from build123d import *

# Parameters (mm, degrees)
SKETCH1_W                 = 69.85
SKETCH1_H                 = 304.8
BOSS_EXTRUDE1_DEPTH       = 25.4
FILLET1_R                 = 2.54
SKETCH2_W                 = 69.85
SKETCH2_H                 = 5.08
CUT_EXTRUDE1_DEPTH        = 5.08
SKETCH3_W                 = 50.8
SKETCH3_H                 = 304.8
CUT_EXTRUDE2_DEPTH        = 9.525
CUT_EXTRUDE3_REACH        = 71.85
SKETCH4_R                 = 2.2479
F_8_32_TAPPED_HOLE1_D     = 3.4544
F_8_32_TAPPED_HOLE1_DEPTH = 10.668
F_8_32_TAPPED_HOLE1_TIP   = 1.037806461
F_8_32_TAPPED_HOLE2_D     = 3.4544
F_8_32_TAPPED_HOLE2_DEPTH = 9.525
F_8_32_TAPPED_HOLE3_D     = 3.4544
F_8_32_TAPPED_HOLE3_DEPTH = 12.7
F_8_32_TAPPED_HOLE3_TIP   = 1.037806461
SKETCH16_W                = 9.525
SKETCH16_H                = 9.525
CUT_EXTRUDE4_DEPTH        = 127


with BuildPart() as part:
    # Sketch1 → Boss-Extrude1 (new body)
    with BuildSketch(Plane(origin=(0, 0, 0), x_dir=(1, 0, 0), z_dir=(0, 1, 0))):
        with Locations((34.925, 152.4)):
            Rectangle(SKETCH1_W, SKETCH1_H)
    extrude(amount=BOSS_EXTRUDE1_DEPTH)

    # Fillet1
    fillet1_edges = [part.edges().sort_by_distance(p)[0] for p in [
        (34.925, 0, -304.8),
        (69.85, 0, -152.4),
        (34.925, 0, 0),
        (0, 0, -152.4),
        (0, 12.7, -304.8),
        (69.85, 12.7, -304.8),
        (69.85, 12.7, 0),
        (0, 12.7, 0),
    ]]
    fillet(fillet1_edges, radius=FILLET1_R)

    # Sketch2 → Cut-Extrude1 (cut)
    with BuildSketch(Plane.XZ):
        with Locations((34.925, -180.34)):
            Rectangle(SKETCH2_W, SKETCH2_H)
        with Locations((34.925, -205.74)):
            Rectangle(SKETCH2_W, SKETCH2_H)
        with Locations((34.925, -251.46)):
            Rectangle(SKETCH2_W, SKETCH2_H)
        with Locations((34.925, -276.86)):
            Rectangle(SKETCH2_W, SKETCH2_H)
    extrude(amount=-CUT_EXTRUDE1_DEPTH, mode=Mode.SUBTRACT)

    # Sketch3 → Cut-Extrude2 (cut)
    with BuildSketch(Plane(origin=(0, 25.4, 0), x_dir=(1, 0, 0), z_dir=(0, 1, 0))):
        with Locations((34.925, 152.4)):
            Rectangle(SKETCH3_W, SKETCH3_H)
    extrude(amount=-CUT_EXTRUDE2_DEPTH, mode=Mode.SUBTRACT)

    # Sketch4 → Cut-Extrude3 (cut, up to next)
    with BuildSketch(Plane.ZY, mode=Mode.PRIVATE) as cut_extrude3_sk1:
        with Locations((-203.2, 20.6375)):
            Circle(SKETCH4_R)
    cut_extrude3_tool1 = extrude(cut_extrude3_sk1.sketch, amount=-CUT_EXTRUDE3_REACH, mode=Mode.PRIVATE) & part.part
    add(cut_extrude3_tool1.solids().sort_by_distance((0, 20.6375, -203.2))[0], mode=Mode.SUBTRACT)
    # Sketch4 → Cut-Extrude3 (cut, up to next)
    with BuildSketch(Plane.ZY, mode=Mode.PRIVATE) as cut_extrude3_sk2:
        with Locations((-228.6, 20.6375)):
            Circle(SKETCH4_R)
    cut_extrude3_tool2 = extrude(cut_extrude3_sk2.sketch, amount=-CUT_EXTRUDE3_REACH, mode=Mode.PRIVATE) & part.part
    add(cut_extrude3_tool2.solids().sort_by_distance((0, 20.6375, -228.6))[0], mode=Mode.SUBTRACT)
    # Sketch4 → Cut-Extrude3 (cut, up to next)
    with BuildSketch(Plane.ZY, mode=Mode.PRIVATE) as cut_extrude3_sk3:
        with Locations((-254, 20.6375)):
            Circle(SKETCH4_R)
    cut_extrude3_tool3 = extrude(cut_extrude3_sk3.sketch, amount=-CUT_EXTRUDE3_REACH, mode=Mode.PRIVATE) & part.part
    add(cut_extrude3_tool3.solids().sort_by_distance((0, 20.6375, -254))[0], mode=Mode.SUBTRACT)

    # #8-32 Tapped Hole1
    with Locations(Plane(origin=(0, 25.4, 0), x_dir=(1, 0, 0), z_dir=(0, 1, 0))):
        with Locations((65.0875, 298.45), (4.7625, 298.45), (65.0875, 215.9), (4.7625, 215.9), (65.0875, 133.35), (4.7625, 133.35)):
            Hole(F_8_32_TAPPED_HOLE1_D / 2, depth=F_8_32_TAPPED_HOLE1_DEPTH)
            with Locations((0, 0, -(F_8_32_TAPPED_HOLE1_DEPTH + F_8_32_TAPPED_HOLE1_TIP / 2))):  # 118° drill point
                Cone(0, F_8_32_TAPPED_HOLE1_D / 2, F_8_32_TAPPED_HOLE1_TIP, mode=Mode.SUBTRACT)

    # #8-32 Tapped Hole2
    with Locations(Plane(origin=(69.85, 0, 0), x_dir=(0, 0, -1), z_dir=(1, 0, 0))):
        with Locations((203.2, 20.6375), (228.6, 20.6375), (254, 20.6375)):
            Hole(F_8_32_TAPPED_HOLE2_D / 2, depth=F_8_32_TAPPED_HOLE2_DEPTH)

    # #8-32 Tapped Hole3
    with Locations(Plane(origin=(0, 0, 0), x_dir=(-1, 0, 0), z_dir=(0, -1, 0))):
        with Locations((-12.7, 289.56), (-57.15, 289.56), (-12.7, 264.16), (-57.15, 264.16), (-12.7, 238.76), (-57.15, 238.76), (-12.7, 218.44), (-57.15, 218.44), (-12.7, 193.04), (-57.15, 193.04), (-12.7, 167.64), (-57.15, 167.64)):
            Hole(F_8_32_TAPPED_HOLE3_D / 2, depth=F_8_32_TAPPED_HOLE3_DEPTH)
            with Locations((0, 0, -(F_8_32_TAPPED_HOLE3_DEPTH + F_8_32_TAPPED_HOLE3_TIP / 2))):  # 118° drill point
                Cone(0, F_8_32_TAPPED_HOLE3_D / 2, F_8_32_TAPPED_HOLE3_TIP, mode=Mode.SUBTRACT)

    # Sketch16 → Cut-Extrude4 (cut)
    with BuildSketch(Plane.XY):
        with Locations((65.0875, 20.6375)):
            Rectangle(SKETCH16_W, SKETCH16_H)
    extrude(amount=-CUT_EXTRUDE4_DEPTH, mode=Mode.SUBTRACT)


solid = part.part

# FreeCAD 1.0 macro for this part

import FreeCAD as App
import Part
import Sketcher

V = App.Vector
Q = App.Units.Quantity


def edges_at(feature, points):
    """Names of the edges that pass closest to the given points."""
    edges = feature.Shape.Edges
    near = lambda p: min(range(len(edges)), key=lambda i: edges[i].distToShape(Part.Vertex(*p))[0])
    return sorted({f"Edge{near(p) + 1}" for p in points})

doc = App.newDocument("Part")
body = doc.addObject("PartDesign::Body", "Body")

# Sketch on XZ plane
sketch1 = body.newObject("Sketcher::SketchObject", "Sketch")
sketch1.AttachmentSupport = (doc.getObject("XZ_Plane"), [""])
sketch1.MapMode = "FlatFace"
sketch1.addGeometry(Part.LineSegment(V(0, -304.8, 0), V(0, 0, 0)), False)
sketch1.addGeometry(Part.LineSegment(V(0, 0, 0), V(69.85, 0, 0)), False)
sketch1.addGeometry(Part.LineSegment(V(69.85, 0, 0), V(69.85, -304.8, 0)), False)
sketch1.addGeometry(Part.LineSegment(V(69.85, -304.8, 0), V(0, -304.8, 0)), False)
sketch1.addConstraint(Sketcher.Constraint("Coincident", 0, 2, 1, 1))
sketch1.addConstraint(Sketcher.Constraint("Coincident", 1, 2, 2, 1))
sketch1.addConstraint(Sketcher.Constraint("Coincident", 2, 2, 3, 1))
sketch1.addConstraint(Sketcher.Constraint("Coincident", 3, 2, 0, 1))
sketch1.addConstraint(Sketcher.Constraint("Vertical", 0))
sketch1.addConstraint(Sketcher.Constraint("Horizontal", 1))
sketch1.addConstraint(Sketcher.Constraint("Vertical", 2))
sketch1.addConstraint(Sketcher.Constraint("Horizontal", 3))
sketch1.addConstraint(Sketcher.Constraint("Coincident", 0, 2, -1, 1))
sketch1.addConstraint(Sketcher.Constraint("DistanceY", 0, 1, 0, 2, Q("12 in")))
sketch1.addConstraint(Sketcher.Constraint("DistanceX", 1, 1, 1, 2, Q("2.75 in")))
pad1 = body.newObject("PartDesign::Pad", "Pad")
pad1.Profile = sketch1
pad1.Length = Q("1 in")
pad1.Reversed = True
doc.recompute()

fillet = body.newObject("PartDesign::Fillet", "Fillet")
fillet.Base = (pad1, edges_at(pad1, [
    (34.925, 0, -304.8),
    (69.85, 0, -152.4),
    (34.925, 0, 0),
    (0, 0, -152.4),
    (0, 12.7, -304.8),
    (69.85, 12.7, -304.8),
    (69.85, 12.7, 0),
    (0, 12.7, 0),
]))
fillet.Radius = Q("0.1 in")

# Sketch on XZ plane
sketch2 = body.newObject("Sketcher::SketchObject", "Sketch001")
sketch2.AttachmentSupport = (doc.getObject("XZ_Plane"), [""])
sketch2.MapMode = "FlatFace"
sketch2.addGeometry(Part.LineSegment(V(0, -177.8, 0), V(0, -182.88, 0)), False)
sketch2.addGeometry(Part.LineSegment(V(0, -182.88, 0), V(69.85, -182.88, 0)), False)
sketch2.addGeometry(Part.LineSegment(V(69.85, -182.88, 0), V(69.85, -177.8, 0)), False)
sketch2.addGeometry(Part.LineSegment(V(69.85, -177.8, 0), V(0, -177.8, 0)), False)
sketch2.addGeometry(Part.LineSegment(V(0, -203.2, 0), V(0, -208.28, 0)), False)
sketch2.addGeometry(Part.LineSegment(V(0, -208.28, 0), V(69.85, -208.28, 0)), False)
sketch2.addGeometry(Part.LineSegment(V(69.85, -208.28, 0), V(69.85, -203.2, 0)), False)
sketch2.addGeometry(Part.LineSegment(V(69.85, -203.2, 0), V(0, -203.2, 0)), False)
sketch2.addGeometry(Part.LineSegment(V(0, -248.92, 0), V(0, -254, 0)), False)
sketch2.addGeometry(Part.LineSegment(V(0, -254, 0), V(69.85, -254, 0)), False)
sketch2.addGeometry(Part.LineSegment(V(69.85, -254, 0), V(69.85, -248.92, 0)), False)
sketch2.addGeometry(Part.LineSegment(V(69.85, -248.92, 0), V(0, -248.92, 0)), False)
sketch2.addGeometry(Part.LineSegment(V(0, -274.32, 0), V(0, -279.4, 0)), False)
sketch2.addGeometry(Part.LineSegment(V(0, -279.4, 0), V(69.85, -279.4, 0)), False)
sketch2.addGeometry(Part.LineSegment(V(69.85, -279.4, 0), V(69.85, -274.32, 0)), False)
sketch2.addGeometry(Part.LineSegment(V(69.85, -274.32, 0), V(0, -274.32, 0)), False)
sketch2.addConstraint(Sketcher.Constraint("Coincident", 0, 2, 1, 1))
sketch2.addConstraint(Sketcher.Constraint("Coincident", 1, 2, 2, 1))
sketch2.addConstraint(Sketcher.Constraint("Coincident", 2, 2, 3, 1))
sketch2.addConstraint(Sketcher.Constraint("Coincident", 3, 2, 0, 1))
sketch2.addConstraint(Sketcher.Constraint("Coincident", 4, 2, 5, 1))
sketch2.addConstraint(Sketcher.Constraint("Coincident", 5, 2, 6, 1))
sketch2.addConstraint(Sketcher.Constraint("Coincident", 6, 2, 7, 1))
sketch2.addConstraint(Sketcher.Constraint("Coincident", 7, 2, 4, 1))
sketch2.addConstraint(Sketcher.Constraint("Coincident", 8, 2, 9, 1))
sketch2.addConstraint(Sketcher.Constraint("Coincident", 9, 2, 10, 1))
sketch2.addConstraint(Sketcher.Constraint("Coincident", 10, 2, 11, 1))
sketch2.addConstraint(Sketcher.Constraint("Coincident", 11, 2, 8, 1))
sketch2.addConstraint(Sketcher.Constraint("Coincident", 12, 2, 13, 1))
sketch2.addConstraint(Sketcher.Constraint("Coincident", 13, 2, 14, 1))
sketch2.addConstraint(Sketcher.Constraint("Coincident", 14, 2, 15, 1))
sketch2.addConstraint(Sketcher.Constraint("Coincident", 15, 2, 12, 1))
sketch2.addConstraint(Sketcher.Constraint("Vertical", 0))
sketch2.addConstraint(Sketcher.Constraint("Horizontal", 1))
sketch2.addConstraint(Sketcher.Constraint("Vertical", 2))
sketch2.addConstraint(Sketcher.Constraint("Horizontal", 3))
sketch2.addConstraint(Sketcher.Constraint("Vertical", 4))
sketch2.addConstraint(Sketcher.Constraint("Horizontal", 5))
sketch2.addConstraint(Sketcher.Constraint("Vertical", 6))
sketch2.addConstraint(Sketcher.Constraint("Horizontal", 7))
sketch2.addConstraint(Sketcher.Constraint("Vertical", 8))
sketch2.addConstraint(Sketcher.Constraint("Horizontal", 9))
sketch2.addConstraint(Sketcher.Constraint("Vertical", 10))
sketch2.addConstraint(Sketcher.Constraint("Horizontal", 11))
sketch2.addConstraint(Sketcher.Constraint("Vertical", 12))
sketch2.addConstraint(Sketcher.Constraint("Horizontal", 13))
sketch2.addConstraint(Sketcher.Constraint("Vertical", 14))
sketch2.addConstraint(Sketcher.Constraint("Horizontal", 15))
sketch2.addConstraint(Sketcher.Constraint("PointOnObject", 0, 2, -2))
sketch2.addConstraint(Sketcher.Constraint("PointOnObject", 4, 2, -2))
sketch2.addConstraint(Sketcher.Constraint("PointOnObject", 8, 2, -2))
sketch2.addConstraint(Sketcher.Constraint("PointOnObject", 12, 2, -2))
sketch2.addConstraint(Sketcher.Constraint("Vertical", 2, 2, 5, 2))
sketch2.addConstraint(Sketcher.Constraint("Vertical", 6, 2, 9, 2))
sketch2.addConstraint(Sketcher.Constraint("Vertical", 10, 2, 13, 2))
sketch2.addConstraint(Sketcher.Constraint("Equal", 2, 4))
sketch2.addConstraint(Sketcher.Constraint("Equal", 6, 8))
sketch2.addConstraint(Sketcher.Constraint("Equal", 10, 12))
sketch2.addConstraint(Sketcher.Constraint("DistanceY", 0, 2, 0, 1, Q("0.2 in")))
sketch2.addConstraint(Sketcher.Constraint("DistanceY", 2, 2, -1, 1, Q("7 in")))
sketch2.addConstraint(Sketcher.Constraint("DistanceY", 6, 2, -1, 1, Q("8 in")))
sketch2.addConstraint(Sketcher.Constraint("DistanceY", 8, 2, -1, 1, Q("10 in")))
sketch2.addConstraint(Sketcher.Constraint("DistanceY", 12, 2, -1, 1, Q("11 in")))
sketch2.addConstraint(Sketcher.Constraint("DistanceX", 1, 1, 1, 2, Q("2.75 in")))
pocket1 = body.newObject("PartDesign::Pocket", "Pocket")
pocket1.Profile = sketch2
pocket1.Length = Q("0.2 in")

# Sketch on XZ plane
sketch3 = body.newObject("Sketcher::SketchObject", "Sketch002")
sketch3.AttachmentSupport = (doc.getObject("XZ_Plane"), [""])
sketch3.MapMode = "FlatFace"
sketch3.AttachmentOffset = App.Placement(V(0, 0, -1 * 25.4), App.Rotation())
sketch3.addGeometry(Part.LineSegment(V(9.525, -304.8, 0), V(9.525, 0, 0)), False)
sketch3.addGeometry(Part.LineSegment(V(9.525, 0, 0), V(60.325, 0, 0)), False)
sketch3.addGeometry(Part.LineSegment(V(60.325, 0, 0), V(60.325, -304.8, 0)), False)
sketch3.addGeometry(Part.LineSegment(V(60.325, -304.8, 0), V(9.525, -304.8, 0)), False)
sketch3.addConstraint(Sketcher.Constraint("Coincident", 0, 2, 1, 1))
sketch3.addConstraint(Sketcher.Constraint("Coincident", 1, 2, 2, 1))
sketch3.addConstraint(Sketcher.Constraint("Coincident", 2, 2, 3, 1))
sketch3.addConstraint(Sketcher.Constraint("Coincident", 3, 2, 0, 1))
sketch3.addConstraint(Sketcher.Constraint("Vertical", 0))
sketch3.addConstraint(Sketcher.Constraint("Horizontal", 1))
sketch3.addConstraint(Sketcher.Constraint("Vertical", 2))
sketch3.addConstraint(Sketcher.Constraint("Horizontal", 3))
sketch3.addConstraint(Sketcher.Constraint("PointOnObject", 0, 2, -1))
sketch3.addConstraint(Sketcher.Constraint("DistanceX", 1, 1, 1, 2, Q("2 in")))
sketch3.addConstraint(Sketcher.Constraint("DistanceY", 0, 1, 0, 2, Q("12 in")))
sketch3.addConstraint(Sketcher.Constraint("DistanceX", -1, 1, 0, 2, Q("0.375 in")))
pocket2 = body.newObject("PartDesign::Pocket", "Pocket001")
pocket2.Profile = sketch3
pocket2.Length = Q("0.375 in")
pocket2.Reversed = True

# Sketch on YZ plane
sketch4 = body.newObject("Sketcher::SketchObject", "Sketch003")
sketch4.AttachmentSupport = (doc.getObject("YZ_Plane"), [""])
sketch4.MapMode = "FlatFace"
sketch4.addGeometry(Part.Circle(V(20.6375, -203.2, 0), V(0, 0, 1), 2.2479), False)
sketch4.addConstraint(Sketcher.Constraint("Diameter", 0, Q("0.177 in")))
sketch4.addConstraint(Sketcher.Constraint("DistanceY", 0, 3, -1, 1, Q("8 in")))
sketch4.addConstraint(Sketcher.Constraint("DistanceX", -1, 1, 0, 3, Q("0.8125 in")))
pocket3 = body.newObject("PartDesign::Pocket", "Pocket002")
pocket3.Profile = sketch4
pocket3.Type = "UpToFirst"
pocket3.Reversed = True

# Sketch on YZ plane
sketch5 = body.newObject("Sketcher::SketchObject", "Sketch004")
sketch5.AttachmentSupport = (doc.getObject("YZ_Plane"), [""])
sketch5.MapMode = "FlatFace"
sketch5.addGeometry(Part.Circle(V(20.6375, -228.6, 0), V(0, 0, 1), 2.2479), False)
sketch5.addConstraint(Sketcher.Constraint("Diameter", 0, Q("0.177 in")))
sketch5.addConstraint(Sketcher.Constraint("DistanceY", 0, 3, -1, 1, Q("9 in")))
sketch5.addConstraint(Sketcher.Constraint("DistanceX", -1, 1, 0, 3, Q("0.8125 in")))
pocket4 = body.newObject("PartDesign::Pocket", "Pocket003")
pocket4.Profile = sketch5
pocket4.Type = "UpToFirst"
pocket4.Reversed = True

# Sketch on YZ plane
sketch6 = body.newObject("Sketcher::SketchObject", "Sketch005")
sketch6.AttachmentSupport = (doc.getObject("YZ_Plane"), [""])
sketch6.MapMode = "FlatFace"
sketch6.addGeometry(Part.Circle(V(20.6375, -254, 0), V(0, 0, 1), 2.2479), False)
sketch6.addConstraint(Sketcher.Constraint("Diameter", 0, Q("0.177 in")))
sketch6.addConstraint(Sketcher.Constraint("DistanceY", 0, 3, -1, 1, Q("10 in")))
sketch6.addConstraint(Sketcher.Constraint("DistanceX", -1, 1, 0, 3, Q("0.8125 in")))
pocket5 = body.newObject("PartDesign::Pocket", "Pocket004")
pocket5.Profile = sketch6
pocket5.Type = "UpToFirst"
pocket5.Reversed = True

# Sketch on XZ plane
sketch7 = body.newObject("Sketcher::SketchObject", "Sketch006")
sketch7.AttachmentSupport = (doc.getObject("XZ_Plane"), [""])
sketch7.MapMode = "FlatFace"
sketch7.AttachmentOffset = App.Placement(V(0, 0, -1 * 25.4), App.Rotation())
sketch7.addGeometry(Part.Circle(V(65.0875, -298.45, 0), V(0, 0, 1), 1.7272), False)
sketch7.addGeometry(Part.Circle(V(4.7625, -298.45, 0), V(0, 0, 1), 1.7272), False)
sketch7.addGeometry(Part.Circle(V(65.0875, -215.9, 0), V(0, 0, 1), 1.7272), False)
sketch7.addGeometry(Part.Circle(V(4.7625, -215.9, 0), V(0, 0, 1), 1.7272), False)
sketch7.addGeometry(Part.Circle(V(65.0875, -133.35, 0), V(0, 0, 1), 1.7272), False)
sketch7.addGeometry(Part.Circle(V(4.7625, -133.35, 0), V(0, 0, 1), 1.7272), False)
sketch7.addConstraint(Sketcher.Constraint("Equal", 0, 1))
sketch7.addConstraint(Sketcher.Constraint("Equal", 1, 2))
sketch7.addConstraint(Sketcher.Constraint("Equal", 2, 3))
sketch7.addConstraint(Sketcher.Constraint("Equal", 3, 4))
sketch7.addConstraint(Sketcher.Constraint("Equal", 4, 5))
sketch7.addConstraint(Sketcher.Constraint("Horizontal", 0, 3, 1, 3))
sketch7.addConstraint(Sketcher.Constraint("Horizontal", 2, 3, 3, 3))
sketch7.addConstraint(Sketcher.Constraint("Horizontal", 4, 3, 5, 3))
sketch7.addConstraint(Sketcher.Constraint("Vertical", 0, 3, 2, 3))
sketch7.addConstraint(Sketcher.Constraint("Vertical", 1, 3, 3, 3))
sketch7.addConstraint(Sketcher.Constraint("Vertical", 2, 3, 4, 3))
sketch7.addConstraint(Sketcher.Constraint("Vertical", 3, 3, 5, 3))
sketch7.addConstraint(Sketcher.Constraint("Diameter", 0, Q("0.136 in")))
sketch7.addConstraint(Sketcher.Constraint("DistanceY", 2, 3, -1, 1, Q("8.5 in")))
sketch7.addConstraint(Sketcher.Constraint("DistanceY", 0, 3, 4, 3, Q("6.5 in")))
sketch7.addConstraint(Sketcher.Constraint("DistanceY", 0, 3, -1, 1, Q("11.75 in")))
sketch7.addConstraint(Sketcher.Constraint("DistanceX", -1, 1, 0, 3, Q("2.5625 in")))
sketch7.addConstraint(Sketcher.Constraint("DistanceX", -1, 1, 1, 3, Q("0.1875 in")))
doc.recompute()
hole = body.newObject("PartDesign::Hole", "Hole")
hole.Profile = sketch7
hole.ThreadType = "None"
hole.Diameter = Q("0.136 in")
hole.DepthType = "Dimension"
hole.Depth = Q("0.42 in")
hole.DrillPoint = "Angled"
hole.DrillPointAngle = 118
hole.Reversed = True

# Sketch on YZ plane
sketch8 = body.newObject("Sketcher::SketchObject", "Sketch007")
sketch8.AttachmentSupport = (doc.getObject("YZ_Plane"), [""])
sketch8.MapMode = "FlatFace"
sketch8.AttachmentOffset = App.Placement(V(0, 0, 2.75 * 25.4), App.Rotation())
sketch8.addGeometry(Part.Circle(V(20.6375, -203.2, 0), V(0, 0, 1), 1.7272), False)
sketch8.addGeometry(Part.Circle(V(20.6375, -228.6, 0), V(0, 0, 1), 1.7272), False)
sketch8.addGeometry(Part.Circle(V(20.6375, -254, 0), V(0, 0, 1), 1.7272), False)
sketch8.addConstraint(Sketcher.Constraint("Equal", 0, 1))
sketch8.addConstraint(Sketcher.Constraint("Equal", 1, 2))
sketch8.addConstraint(Sketcher.Constraint("Vertical", 0, 3, 1, 3))
sketch8.addConstraint(Sketcher.Constraint("Vertical", 1, 3, 2, 3))
sketch8.addConstraint(Sketcher.Constraint("Diameter", 0, Q("0.136 in")))
sketch8.addConstraint(Sketcher.Constraint("DistanceY", 0, 3, -1, 1, Q("8 in")))
sketch8.addConstraint(Sketcher.Constraint("DistanceY", 1, 3, -1, 1, Q("9 in")))
sketch8.addConstraint(Sketcher.Constraint("DistanceY", 2, 3, -1, 1, Q("10 in")))
sketch8.addConstraint(Sketcher.Constraint("DistanceX", -1, 1, 0, 3, Q("0.8125 in")))
doc.recompute()
hole2 = body.newObject("PartDesign::Hole", "Hole001")
hole2.Profile = sketch8
hole2.ThreadType = "None"
hole2.Diameter = Q("0.136 in")
hole2.DepthType = "Dimension"
hole2.Depth = Q("0.375 in")
hole2.DrillPoint = "Flat"

# Sketch on XZ plane
sketch9 = body.newObject("Sketcher::SketchObject", "Sketch008")
sketch9.AttachmentSupport = (doc.getObject("XZ_Plane"), [""])
sketch9.MapMode = "FlatFace"
sketch9.addGeometry(Part.Circle(V(12.7, -289.56, 0), V(0, 0, 1), 1.7272), False)
sketch9.addGeometry(Part.Circle(V(57.15, -289.56, 0), V(0, 0, 1), 1.7272), False)
sketch9.addGeometry(Part.Circle(V(12.7, -264.16, 0), V(0, 0, 1), 1.7272), False)
sketch9.addGeometry(Part.Circle(V(57.15, -264.16, 0), V(0, 0, 1), 1.7272), False)
sketch9.addGeometry(Part.Circle(V(12.7, -238.76, 0), V(0, 0, 1), 1.7272), False)
sketch9.addGeometry(Part.Circle(V(57.15, -238.76, 0), V(0, 0, 1), 1.7272), False)
sketch9.addGeometry(Part.Circle(V(12.7, -218.44, 0), V(0, 0, 1), 1.7272), False)
sketch9.addGeometry(Part.Circle(V(57.15, -218.44, 0), V(0, 0, 1), 1.7272), False)
sketch9.addGeometry(Part.Circle(V(12.7, -193.04, 0), V(0, 0, 1), 1.7272), False)
sketch9.addGeometry(Part.Circle(V(57.15, -193.04, 0), V(0, 0, 1), 1.7272), False)
sketch9.addGeometry(Part.Circle(V(12.7, -167.64, 0), V(0, 0, 1), 1.7272), False)
sketch9.addGeometry(Part.Circle(V(57.15, -167.64, 0), V(0, 0, 1), 1.7272), False)
sketch9.addConstraint(Sketcher.Constraint("Equal", 0, 1))
sketch9.addConstraint(Sketcher.Constraint("Equal", 1, 2))
sketch9.addConstraint(Sketcher.Constraint("Equal", 2, 3))
sketch9.addConstraint(Sketcher.Constraint("Equal", 3, 4))
sketch9.addConstraint(Sketcher.Constraint("Equal", 4, 5))
sketch9.addConstraint(Sketcher.Constraint("Equal", 5, 6))
sketch9.addConstraint(Sketcher.Constraint("Equal", 6, 7))
sketch9.addConstraint(Sketcher.Constraint("Equal", 7, 8))
sketch9.addConstraint(Sketcher.Constraint("Equal", 8, 9))
sketch9.addConstraint(Sketcher.Constraint("Equal", 9, 10))
sketch9.addConstraint(Sketcher.Constraint("Equal", 10, 11))
sketch9.addConstraint(Sketcher.Constraint("Horizontal", 0, 3, 1, 3))
sketch9.addConstraint(Sketcher.Constraint("Horizontal", 2, 3, 3, 3))
sketch9.addConstraint(Sketcher.Constraint("Horizontal", 4, 3, 5, 3))
sketch9.addConstraint(Sketcher.Constraint("Horizontal", 6, 3, 7, 3))
sketch9.addConstraint(Sketcher.Constraint("Horizontal", 8, 3, 9, 3))
sketch9.addConstraint(Sketcher.Constraint("Horizontal", 10, 3, 11, 3))
sketch9.addConstraint(Sketcher.Constraint("Vertical", 0, 3, 2, 3))
sketch9.addConstraint(Sketcher.Constraint("Vertical", 1, 3, 3, 3))
sketch9.addConstraint(Sketcher.Constraint("Vertical", 2, 3, 4, 3))
sketch9.addConstraint(Sketcher.Constraint("Vertical", 3, 3, 5, 3))
sketch9.addConstraint(Sketcher.Constraint("Vertical", 4, 3, 6, 3))
sketch9.addConstraint(Sketcher.Constraint("Vertical", 5, 3, 7, 3))
sketch9.addConstraint(Sketcher.Constraint("Vertical", 6, 3, 8, 3))
sketch9.addConstraint(Sketcher.Constraint("Vertical", 7, 3, 9, 3))
sketch9.addConstraint(Sketcher.Constraint("Vertical", 8, 3, 10, 3))
sketch9.addConstraint(Sketcher.Constraint("Vertical", 9, 3, 11, 3))
sketch9.addConstraint(Sketcher.Constraint("Diameter", 0, Q("0.136 in")))
sketch9.addConstraint(Sketcher.Constraint("DistanceY", 0, 3, 2, 3, Q("1 in")))
sketch9.addConstraint(Sketcher.Constraint("DistanceY", 2, 3, 4, 3, Q("1 in")))
sketch9.addConstraint(Sketcher.Constraint("DistanceY", 6, 3, 8, 3, Q("1 in")))
sketch9.addConstraint(Sketcher.Constraint("DistanceY", 8, 3, 10, 3, Q("1 in")))
sketch9.addConstraint(Sketcher.Constraint("DistanceX", -1, 1, 0, 3, Q("0.5 in")))
sketch9.addConstraint(Sketcher.Constraint("DistanceY", 0, 3, -1, 1, Q("11.4 in")))
sketch9.addConstraint(Sketcher.Constraint("DistanceY", 6, 3, -1, 1, Q("8.6 in")))
sketch9.addConstraint(Sketcher.Constraint("DistanceX", -1, 1, 1, 3, Q("2.25 in")))
doc.recompute()
hole3 = body.newObject("PartDesign::Hole", "Hole002")
hole3.Profile = sketch9
hole3.ThreadType = "None"
hole3.Diameter = Q("0.136 in")
hole3.DepthType = "Dimension"
hole3.Depth = Q("0.5 in")
hole3.DrillPoint = "Angled"
hole3.DrillPointAngle = 118

# Sketch on XY plane
sketch10 = body.newObject("Sketcher::SketchObject", "Sketch009")
sketch10.AttachmentSupport = (doc.getObject("XY_Plane"), [""])
sketch10.MapMode = "FlatFace"
sketch10.addGeometry(Part.LineSegment(V(60.325, 25.4, 0), V(60.325, 15.875, 0)), False)
sketch10.addGeometry(Part.LineSegment(V(60.325, 15.875, 0), V(69.85, 15.875, 0)), False)
sketch10.addGeometry(Part.LineSegment(V(69.85, 15.875, 0), V(69.85, 25.4, 0)), False)
sketch10.addGeometry(Part.LineSegment(V(69.85, 25.4, 0), V(60.325, 25.4, 0)), False)
sketch10.addConstraint(Sketcher.Constraint("Coincident", 0, 2, 1, 1))
sketch10.addConstraint(Sketcher.Constraint("Coincident", 1, 2, 2, 1))
sketch10.addConstraint(Sketcher.Constraint("Coincident", 2, 2, 3, 1))
sketch10.addConstraint(Sketcher.Constraint("Coincident", 3, 2, 0, 1))
sketch10.addConstraint(Sketcher.Constraint("Vertical", 0))
sketch10.addConstraint(Sketcher.Constraint("Horizontal", 1))
sketch10.addConstraint(Sketcher.Constraint("Vertical", 2))
sketch10.addConstraint(Sketcher.Constraint("Horizontal", 3))
sketch10.addConstraint(Sketcher.Constraint("Equal", 3, 0))
sketch10.addConstraint(Sketcher.Constraint("DistanceY", -1, 1, 2, 2, Q("1 in")))
sketch10.addConstraint(Sketcher.Constraint("DistanceX", 1, 1, 1, 2, Q("0.375 in")))
sketch10.addConstraint(Sketcher.Constraint("DistanceX", -1, 1, 1, 2, Q("2.75 in")))
pocket6 = body.newObject("PartDesign::Pocket", "Pocket005")
pocket6.Profile = sketch10
pocket6.Length = Q("5 in")

doc.recompute()
